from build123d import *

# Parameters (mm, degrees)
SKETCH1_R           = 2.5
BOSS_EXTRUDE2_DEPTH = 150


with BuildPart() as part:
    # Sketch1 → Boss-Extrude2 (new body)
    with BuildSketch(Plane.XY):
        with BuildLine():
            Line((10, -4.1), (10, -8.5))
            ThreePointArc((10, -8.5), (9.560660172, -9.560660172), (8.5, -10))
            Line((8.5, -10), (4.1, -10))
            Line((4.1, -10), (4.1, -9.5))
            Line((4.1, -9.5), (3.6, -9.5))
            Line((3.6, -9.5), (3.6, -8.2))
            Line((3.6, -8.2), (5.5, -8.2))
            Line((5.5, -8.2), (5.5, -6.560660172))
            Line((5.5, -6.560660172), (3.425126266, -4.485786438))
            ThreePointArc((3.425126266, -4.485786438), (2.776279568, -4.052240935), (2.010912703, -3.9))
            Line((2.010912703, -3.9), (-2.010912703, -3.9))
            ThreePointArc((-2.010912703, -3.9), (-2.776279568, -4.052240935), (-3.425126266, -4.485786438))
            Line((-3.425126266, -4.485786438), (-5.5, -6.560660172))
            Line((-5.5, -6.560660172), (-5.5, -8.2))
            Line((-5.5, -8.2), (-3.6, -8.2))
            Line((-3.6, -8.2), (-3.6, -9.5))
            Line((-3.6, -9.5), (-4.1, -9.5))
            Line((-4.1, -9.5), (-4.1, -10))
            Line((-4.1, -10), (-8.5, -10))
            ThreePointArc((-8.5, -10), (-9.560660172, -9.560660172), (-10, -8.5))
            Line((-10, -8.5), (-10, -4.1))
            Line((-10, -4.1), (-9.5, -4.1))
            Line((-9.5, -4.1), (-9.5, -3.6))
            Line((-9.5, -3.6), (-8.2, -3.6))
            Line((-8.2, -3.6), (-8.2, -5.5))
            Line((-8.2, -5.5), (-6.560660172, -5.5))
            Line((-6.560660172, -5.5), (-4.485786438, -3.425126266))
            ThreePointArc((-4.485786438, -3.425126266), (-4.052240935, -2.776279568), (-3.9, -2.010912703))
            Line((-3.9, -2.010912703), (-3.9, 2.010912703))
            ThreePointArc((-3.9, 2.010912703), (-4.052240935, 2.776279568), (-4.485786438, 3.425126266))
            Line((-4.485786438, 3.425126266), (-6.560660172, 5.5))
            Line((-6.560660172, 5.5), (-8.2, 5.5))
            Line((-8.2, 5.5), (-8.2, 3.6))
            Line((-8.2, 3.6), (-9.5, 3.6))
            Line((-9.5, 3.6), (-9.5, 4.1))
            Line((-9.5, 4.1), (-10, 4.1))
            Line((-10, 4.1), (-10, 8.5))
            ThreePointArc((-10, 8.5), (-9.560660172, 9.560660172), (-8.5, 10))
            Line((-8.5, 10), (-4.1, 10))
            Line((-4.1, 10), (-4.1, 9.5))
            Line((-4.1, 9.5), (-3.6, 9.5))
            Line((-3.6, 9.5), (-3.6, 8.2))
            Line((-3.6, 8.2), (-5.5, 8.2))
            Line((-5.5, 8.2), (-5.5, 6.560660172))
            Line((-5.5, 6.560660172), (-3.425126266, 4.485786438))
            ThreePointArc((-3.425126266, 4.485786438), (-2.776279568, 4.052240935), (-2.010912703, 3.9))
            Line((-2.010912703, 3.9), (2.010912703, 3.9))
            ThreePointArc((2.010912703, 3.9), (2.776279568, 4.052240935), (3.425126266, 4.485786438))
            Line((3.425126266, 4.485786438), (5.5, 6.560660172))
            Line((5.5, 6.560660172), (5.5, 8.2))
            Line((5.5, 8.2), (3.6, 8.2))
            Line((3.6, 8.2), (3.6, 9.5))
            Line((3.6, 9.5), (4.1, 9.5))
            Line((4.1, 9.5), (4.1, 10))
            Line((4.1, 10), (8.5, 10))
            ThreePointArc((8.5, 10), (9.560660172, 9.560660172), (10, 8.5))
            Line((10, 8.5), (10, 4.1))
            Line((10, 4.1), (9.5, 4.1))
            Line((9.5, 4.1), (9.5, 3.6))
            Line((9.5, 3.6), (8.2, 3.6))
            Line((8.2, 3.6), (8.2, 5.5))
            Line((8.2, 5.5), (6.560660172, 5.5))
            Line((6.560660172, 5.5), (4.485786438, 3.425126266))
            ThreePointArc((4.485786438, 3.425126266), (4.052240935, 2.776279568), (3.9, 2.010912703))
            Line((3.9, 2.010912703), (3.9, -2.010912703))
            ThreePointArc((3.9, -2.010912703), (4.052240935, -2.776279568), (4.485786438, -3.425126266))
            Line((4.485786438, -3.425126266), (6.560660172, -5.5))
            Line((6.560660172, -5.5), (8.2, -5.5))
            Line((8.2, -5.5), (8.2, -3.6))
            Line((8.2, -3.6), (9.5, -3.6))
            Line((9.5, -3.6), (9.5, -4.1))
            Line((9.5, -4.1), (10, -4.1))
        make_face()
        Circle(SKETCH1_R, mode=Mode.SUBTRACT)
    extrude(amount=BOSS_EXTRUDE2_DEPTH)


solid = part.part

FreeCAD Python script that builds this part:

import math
import FreeCAD as App
import Part
import Sketcher
from FreeCAD import Vector

doc = App.newDocument("Part")
body = doc.addObject("PartDesign::Body", "Body")

sketch1 = body.newObject("Sketcher::SketchObject", "Sketch")
sketch1.AttachmentSupport = (doc.getObject("XY_Plane"), [""])
sketch1.MapMode = "FlatFace"
sketch1.addGeometry(Part.LineSegment(Vector(10, -8.5, 0), Vector(10, -4.1, 0)), False)
sketch1.addGeometry(Part.LineSegment(Vector(10, -4.1, 0), Vector(9.5, -4.1, 0)), False)
sketch1.addGeometry(Part.LineSegment(Vector(9.5, -4.1, 0), Vector(9.5, -3.6, 0)), False)
sketch1.addGeometry(Part.LineSegment(Vector(9.5, -3.6, 0), Vector(8.2, -3.6, 0)), False)
sketch1.addGeometry(Part.LineSegment(Vector(8.2, -3.6, 0), Vector(8.2, -5.5, 0)), False)
sketch1.addGeometry(Part.LineSegment(Vector(8.2, -5.5, 0), Vector(6.56, -5.5, 0)), False)
sketch1.addGeometry(Part.LineSegment(Vector(6.56, -5.5, 0), Vector(4.49, -3.43, 0)), False)
sketch1.addGeometry(Part.ArcOfCircle(Part.Circle(Vector(5.9, -2.01, 0), Vector(0, 0, 1), 2), math.radians(180), math.radians(225)), False)
sketch1.addGeometry(Part.LineSegment(Vector(3.9, -2.01, 0), Vector(3.9, 2.01, 0)), False)
sketch1.addGeometry(Part.ArcOfCircle(Part.Circle(Vector(5.9, 2.01, 0), Vector(0, 0, 1), 2), math.radians(135), math.radians(180)), False)
sketch1.addGeometry(Part.LineSegment(Vector(4.49, 3.43, 0), Vector(6.56, 5.5, 0)), False)
sketch1.addGeometry(Part.LineSegment(Vector(6.56, 5.5, 0), Vector(8.2, 5.5, 0)), False)
sketch1.addGeometry(Part.LineSegment(Vector(8.2, 5.5, 0), Vector(8.2, 3.6, 0)), False)
sketch1.addGeometry(Part.LineSegment(Vector(8.2, 3.6, 0), Vector(9.5, 3.6, 0)), False)
sketch1.addGeometry(Part.LineSegment(Vector(9.5, 3.6, 0), Vector(9.5, 4.1, 0)), False)
sketch1.addGeometry(Part.LineSegment(Vector(9.5, 4.1, 0), Vector(10, 4.1, 0)), False)
sketch1.addGeometry(Part.LineSegment(Vector(10, 4.1, 0), Vector(10, 8.5, 0)), False)
sketch1.addGeometry(Part.ArcOfCircle(Part.Circle(Vector(8.5, 8.5, 0), Vector(0, 0, 1), 1.5), math.radians(0), math.radians(90)), False)
sketch1.addGeometry(Part.LineSegment(Vector(8.5, 10, 0), Vector(4.1, 10, 0)), False)
sketch1.addGeometry(Part.LineSegment(Vector(4.1, 10, 0), Vector(4.1, 9.5, 0)), False)
sketch1.addGeometry(Part.LineSegment(Vector(4.1, 9.5, 0), Vector(3.6, 9.5, 0)), False)
sketch1.addGeometry(Part.LineSegment(Vector(3.6, 9.5, 0), Vector(3.6, 8.2, 0)), False)
sketch1.addGeometry(Part.LineSegment(Vector(3.6, 8.2, 0), Vector(5.5, 8.2, 0)), False)
sketch1.addGeometry(Part.LineSegment(Vector(5.5, 8.2, 0), Vector(5.5, 6.56, 0)), False)
sketch1.addGeometry(Part.LineSegment(Vector(5.5, 6.56, 0), Vector(3.43, 4.49, 0)), False)
sketch1.addGeometry(Part.ArcOfCircle(Part.Circle(Vector(2.01, 5.9, 0), Vector(0, 0, 1), 2), math.radians(-90), math.radians(-45)), False)
sketch1.addGeometry(Part.LineSegment(Vector(2.01, 3.9, 0), Vector(-2.01, 3.9, 0)), False)
sketch1.addGeometry(Part.ArcOfCircle(Part.Circle(Vector(-2.01, 5.9, 0), Vector(0, 0, 1), 2), math.radians(-135), math.radians(-90)), False)
sketch1.addGeometry(Part.LineSegment(Vector(-3.43, 4.49, 0), Vector(-5.5, 6.56, 0)), False)
sketch1.addGeometry(Part.LineSegment(Vector(-5.5, 6.56, 0), Vector(-5.5, 8.2, 0)), False)
sketch1.addGeometry(Part.LineSegment(Vector(-5.5, 8.2, 0), Vector(-3.6, 8.2, 0)), False)
sketch1.addGeometry(Part.LineSegment(Vector(-3.6, 8.2, 0), Vector(-3.6, 9.5, 0)), False)
sketch1.addGeometry(Part.LineSegment(Vector(-3.6, 9.5, 0), Vector(-4.1, 9.5, 0)), False)
sketch1.addGeometry(Part.LineSegment(Vector(-4.1, 9.5, 0), Vector(-4.1, 10, 0)), False)
sketch1.addGeometry(Part.LineSegment(Vector(-4.1, 10, 0), Vector(-8.5, 10, 0)), False)
sketch1.addGeometry(Part.ArcOfCircle(Part.Circle(Vector(-8.5, 8.5, 0), Vector(0, 0, 1), 1.5), math.radians(90), math.radians(180)), False)
sketch1.addGeometry(Part.LineSegment(Vector(-10, 8.5, 0), Vector(-10, 4.1, 0)), False)
sketch1.addGeometry(Part.LineSegment(Vector(-10, 4.1, 0), Vector(-9.5, 4.1, 0)), False)
sketch1.addGeometry(Part.LineSegment(Vector(-9.5, 4.1, 0), Vector(-9.5, 3.6, 0)), False)
sketch1.addGeometry(Part.LineSegment(Vector(-9.5, 3.6, 0), Vector(-8.2, 3.6, 0)), False)
sketch1.addGeometry(Part.LineSegment(Vector(-8.2, 3.6, 0), Vector(-8.2, 5.5, 0)), False)
sketch1.addGeometry(Part.LineSegment(Vector(-8.2, 5.5, 0), Vector(-6.56, 5.5, 0)), False)
sketch1.addGeometry(Part.LineSegment(Vector(-6.56, 5.5, 0), Vector(-4.49, 3.43, 0)), False)
sketch1.addGeometry(Part.ArcOfCircle(Part.Circle(Vector(-5.9, 2.01, 0), Vector(0, 0, 1), 2), math.radians(0), math.radians(45)), False)
sketch1.addGeometry(Part.LineSegment(Vector(-3.9, 2.01, 0), Vector(-3.9, -2.01, 0)), False)
sketch1.addGeometry(Part.ArcOfCircle(Part.Circle(Vector(-5.9, -2.01, 0), Vector(0, 0, 1), 2), math.radians(-45), math.radians(0)), False)
sketch1.addGeometry(Part.LineSegment(Vector(-4.49, -3.43, 0), Vector(-6.56, -5.5, 0)), False)
sketch1.addGeometry(Part.LineSegment(Vector(-6.56, -5.5, 0), Vector(-8.2, -5.5, 0)), False)
sketch1.addGeometry(Part.LineSegment(Vector(-8.2, -5.5, 0), Vector(-8.2, -3.6, 0)), False)
sketch1.addGeometry(Part.LineSegment(Vector(-8.2, -3.6, 0), Vector(-9.5, -3.6, 0)), False)
sketch1.addGeometry(Part.LineSegment(Vector(-9.5, -3.6, 0), Vector(-9.5, -4.1, 0)), False)
sketch1.addGeometry(Part.LineSegment(Vector(-9.5, -4.1, 0), Vector(-10, -4.1, 0)), False)
sketch1.addGeometry(Part.LineSegment(Vector(-10, -4.1, 0), Vector(-10, -8.5, 0)), False)
sketch1.addGeometry(Part.ArcOfCircle(Part.Circle(Vector(-8.5, -8.5, 0), Vector(0, 0, 1), 1.5), math.radians(180), math.radians(270)), False)
sketch1.addGeometry(Part.LineSegment(Vector(-8.5, -10, 0), Vector(-4.1, -10, 0)), False)
sketch1.addGeometry(Part.LineSegment(Vector(-4.1, -10, 0), Vector(-4.1, -9.5, 0)), False)
sketch1.addGeometry(Part.LineSegment(Vector(-4.1, -9.5, 0), Vector(-3.6, -9.5, 0)), False)
sketch1.addGeometry(Part.LineSegment(Vector(-3.6, -9.5, 0), Vector(-3.6, -8.2, 0)), False)
sketch1.addGeometry(Part.LineSegment(Vector(-3.6, -8.2, 0), Vector(-5.5, -8.2, 0)), False)
sketch1.addGeometry(Part.LineSegment(Vector(-5.5, -8.2, 0), Vector(-5.5, -6.56, 0)), False)
sketch1.addGeometry(Part.LineSegment(Vector(-5.5, -6.56, 0), Vector(-3.43, -4.49, 0)), False)
sketch1.addGeometry(Part.ArcOfCircle(Part.Circle(Vector(-2.01, -5.9, 0), Vector(0, 0, 1), 2), math.radians(90), math.radians(135)), False)
sketch1.addGeometry(Part.LineSegment(Vector(-2.01, -3.9, 0), Vector(2.01, -3.9, 0)), False)
sketch1.addGeometry(Part.ArcOfCircle(Part.Circle(Vector(2.01, -5.9, 0), Vector(0, 0, 1), 2), math.radians(45), math.radians(90)), False)
sketch1.addGeometry(Part.LineSegment(Vector(3.43, -4.49, 0), Vector(5.5, -6.56, 0)), False)
sketch1.addGeometry(Part.LineSegment(Vector(5.5, -6.56, 0), Vector(5.5, -8.2, 0)), False)
sketch1.addGeometry(Part.LineSegment(Vector(5.5, -8.2, 0), Vector(3.6, -8.2, 0)), False)
sketch1.addGeometry(Part.LineSegment(Vector(3.6, -8.2, 0), Vector(3.6, -9.5, 0)), False)
sketch1.addGeometry(Part.LineSegment(Vector(3.6, -9.5, 0), Vector(4.1, -9.5, 0)), False)
sketch1.addGeometry(Part.LineSegment(Vector(4.1, -9.5, 0), Vector(4.1, -10, 0)), False)
sketch1.addGeometry(Part.LineSegment(Vector(4.1, -10, 0), Vector(8.5, -10, 0)), False)
sketch1.addGeometry(Part.ArcOfCircle(Part.Circle(Vector(8.5, -8.5, 0), Vector(0, 0, 1), 1.5), math.radians(-90), math.radians(0)), False)
sketch1.addGeometry(Part.Circle(Vector(0, 0, 0), Vector(0, 0, 1), 2.5), False)
sketch1.addConstraint(Sketcher.Constraint("Coincident", 0, 2, 1, 1))
sketch1.addConstraint(Sketcher.Constraint("Coincident", 1, 2, 2, 1))
sketch1.addConstraint(Sketcher.Constraint("Coincident", 2, 2, 3, 1))
sketch1.addConstraint(Sketcher.Constraint("Coincident", 3, 2, 4, 1))
sketch1.addConstraint(Sketcher.Constraint("Coincident", 4, 2, 5, 1))
sketch1.addConstraint(Sketcher.Constraint("Coincident", 5, 2, 6, 1))
sketch1.addConstraint(Sketcher.Constraint("Tangent", 6, 2, 7, 2))
sketch1.addConstraint(Sketcher.Constraint("Tangent", 7, 1, 8, 1))
sketch1.addConstraint(Sketcher.Constraint("Tangent", 8, 2, 9, 2))
sketch1.addConstraint(Sketcher.Constraint("Tangent", 9, 1, 10, 1))
sketch1.addConstraint(Sketcher.Constraint("Coincident", 10, 2, 11, 1))
sketch1.addConstraint(Sketcher.Constraint("Coincident", 11, 2, 12, 1))
sketch1.addConstraint(Sketcher.Constraint("Coincident", 12, 2, 13, 1))
sketch1.addConstraint(Sketcher.Constraint("Coincident", 13, 2, 14, 1))
sketch1.addConstraint(Sketcher.Constraint("Coincident", 14, 2, 15, 1))
sketch1.addConstraint(Sketcher.Constraint("Coincident", 15, 2, 16, 1))
sketch1.addConstraint(Sketcher.Constraint("Tangent", 16, 2, 17, 1))
sketch1.addConstraint(Sketcher.Constraint("Tangent", 17, 2, 18, 1))
sketch1.addConstraint(Sketcher.Constraint("Coincident", 18, 2, 19, 1))
sketch1.addConstraint(Sketcher.Constraint("Coincident", 19, 2, 20, 1))
sketch1.addConstraint(Sketcher.Constraint("Coincident", 20, 2, 21, 1))
sketch1.addConstraint(Sketcher.Constraint("Coincident", 21, 2, 22, 1))
sketch1.addConstraint(Sketcher.Constraint("Coincident", 22, 2, 23, 1))
sketch1.addConstraint(Sketcher.Constraint("Coincident", 23, 2, 24, 1))
sketch1.addConstraint(Sketcher.Constraint("Tangent", 24, 2, 25, 2))
sketch1.addConstraint(Sketcher.Constraint("Tangent", 25, 1, 26, 1))
sketch1.addConstraint(Sketcher.Constraint("Tangent", 26, 2, 27, 2))
sketch1.addConstraint(Sketcher.Constraint("Tangent", 27, 1, 28, 1))
sketch1.addConstraint(Sketcher.Constraint("Coincident", 28, 2, 29, 1))
sketch1.addConstraint(Sketcher.Constraint("Coincident", 29, 2, 30, 1))
sketch1.addConstraint(Sketcher.Constraint("Coincident", 30, 2, 31, 1))
sketch1.addConstraint(Sketcher.Constraint("Coincident", 31, 2, 32, 1))
sketch1.addConstraint(Sketcher.Constraint("Coincident", 32, 2, 33, 1))
sketch1.addConstraint(Sketcher.Constraint("Coincident", 33, 2, 34, 1))
sketch1.addConstraint(Sketcher.Constraint("Tangent", 34, 2, 35, 1))
sketch1.addConstraint(Sketcher.Constraint("Tangent", 35, 2, 36, 1))
sketch1.addConstraint(Sketcher.Constraint("Coincident", 36, 2, 37, 1))
sketch1.addConstraint(Sketcher.Constraint("Coincident", 37, 2, 38, 1))
sketch1.addConstraint(Sketcher.Constraint("Coincident", 38, 2, 39, 1))
sketch1.addConstraint(Sketcher.Constraint("Coincident", 39, 2, 40, 1))
sketch1.addConstraint(Sketcher.Constraint("Coincident", 40, 2, 41, 1))
sketch1.addConstraint(Sketcher.Constraint("Coincident", 41, 2, 42, 1))
sketch1.addConstraint(Sketcher.Constraint("Tangent", 42, 2, 43, 2))
sketch1.addConstraint(Sketcher.Constraint("Tangent", 43, 1, 44, 1))
sketch1.addConstraint(Sketcher.Constraint("Tangent", 44, 2, 45, 2))
sketch1.addConstraint(Sketcher.Constraint("Tangent", 45, 1, 46, 1))
sketch1.addConstraint(Sketcher.Constraint("Coincident", 46, 2, 47, 1))
sketch1.addConstraint(Sketcher.Constraint("Coincident", 47, 2, 48, 1))
sketch1.addConstraint(Sketcher.Constraint("Coincident", 48, 2, 49, 1))
sketch1.addConstraint(Sketcher.Constraint("Coincident", 49, 2, 50, 1))
sketch1.addConstraint(Sketcher.Constraint("Coincident", 50, 2, 51, 1))
sketch1.addConstraint(Sketcher.Constraint("Coincident", 51, 2, 52, 1))
sketch1.addConstraint(Sketcher.Constraint("Tangent", 52, 2, 53, 1))
sketch1.addConstraint(Sketcher.Constraint("Tangent", 53, 2, 54, 1))
sketch1.addConstraint(Sketcher.Constraint("Coincident", 54, 2, 55, 1))
sketch1.addConstraint(Sketcher.Constraint("Coincident", 55, 2, 56, 1))
sketch1.addConstraint(Sketcher.Constraint("Coincident", 56, 2, 57, 1))
sketch1.addConstraint(Sketcher.Constraint("Coincident", 57, 2, 58, 1))
sketch1.addConstraint(Sketcher.Constraint("Coincident", 58, 2, 59, 1))
sketch1.addConstraint(Sketcher.Constraint("Coincident", 59, 2, 60, 1))
sketch1.addConstraint(Sketcher.Constraint("Tangent", 60, 2, 61, 2))
sketch1.addConstraint(Sketcher.Constraint("Tangent", 61, 1, 62, 1))
sketch1.addConstraint(Sketcher.Constraint("Tangent", 62, 2, 63, 2))
sketch1.addConstraint(Sketcher.Constraint("Tangent", 63, 1, 64, 1))
sketch1.addConstraint(Sketcher.Constraint("Coincident", 64, 2, 65, 1))
sketch1.addConstraint(Sketcher.Constraint("Coincident", 65, 2, 66, 1))
sketch1.addConstraint(Sketcher.Constraint("Coincident", 66, 2, 67, 1))
sketch1.addConstraint(Sketcher.Constraint("Coincident", 67, 2, 68, 1))
sketch1.addConstraint(Sketcher.Constraint("Coincident", 68, 2, 69, 1))
sketch1.addConstraint(Sketcher.Constraint("Coincident", 69, 2, 70, 1))
sketch1.addConstraint(Sketcher.Constraint("Tangent", 70, 2, 71, 1))
sketch1.addConstraint(Sketcher.Constraint("Tangent", 71, 2, 0, 1))
sketch1.addConstraint(Sketcher.Constraint("Vertical", 0))
sketch1.addConstraint(Sketcher.Constraint("Horizontal", 1))
sketch1.addConstraint(Sketcher.Constraint("Vertical", 2))
sketch1.addConstraint(Sketcher.Constraint("Horizontal", 3))
sketch1.addConstraint(Sketcher.Constraint("Vertical", 4))
sketch1.addConstraint(Sketcher.Constraint("Horizontal", 5))
sketch1.addConstraint(Sketcher.Constraint("Vertical", 8))
sketch1.addConstraint(Sketcher.Constraint("Horizontal", 11))
sketch1.addConstraint(Sketcher.Constraint("Vertical", 12))
sketch1.addConstraint(Sketcher.Constraint("Horizontal", 13))
sketch1.addConstraint(Sketcher.Constraint("Vertical", 14))
sketch1.addConstraint(Sketcher.Constraint("Horizontal", 15))
sketch1.addConstraint(Sketcher.Constraint("Vertical", 16))
sketch1.addConstraint(Sketcher.Constraint("Horizontal", 18))
sketch1.addConstraint(Sketcher.Constraint("Vertical", 19))
sketch1.addConstraint(Sketcher.Constraint("Horizontal", 20))
sketch1.addConstraint(Sketcher.Constraint("Vertical", 21))
sketch1.addConstraint(Sketcher.Constraint("Horizontal", 22))
sketch1.addConstraint(Sketcher.Constraint("Vertical", 23))
sketch1.addConstraint(Sketcher.Constraint("Horizontal", 26))
sketch1.addConstraint(Sketcher.Constraint("Vertical", 29))
sketch1.addConstraint(Sketcher.Constraint("Horizontal", 30))
sketch1.addConstraint(Sketcher.Constraint("Vertical", 31))
sketch1.addConstraint(Sketcher.Constraint("Horizontal", 32))
sketch1.addConstraint(Sketcher.Constraint("Vertical", 33))
sketch1.addConstraint(Sketcher.Constraint("Horizontal", 34))
sketch1.addConstraint(Sketcher.Constraint("Vertical", 36))
sketch1.addConstraint(Sketcher.Constraint("Horizontal", 37))
sketch1.addConstraint(Sketcher.Constraint("Vertical", 38))
sketch1.addConstraint(Sketcher.Constraint("Horizontal", 39))
sketch1.addConstraint(Sketcher.Constraint("Vertical", 40))
sketch1.addConstraint(Sketcher.Constraint("Horizontal", 41))
sketch1.addConstraint(Sketcher.Constraint("Vertical", 44))
sketch1.addConstraint(Sketcher.Constraint("Horizontal", 47))
sketch1.addConstraint(Sketcher.Constraint("Vertical", 48))
sketch1.addConstraint(Sketcher.Constraint("Horizontal", 49))
sketch1.addConstraint(Sketcher.Constraint("Vertical", 50))
sketch1.addConstraint(Sketcher.Constraint("Horizontal", 51))
sketch1.addConstraint(Sketcher.Constraint("Vertical", 52))
sketch1.addConstraint(Sketcher.Constraint("Horizontal", 54))
sketch1.addConstraint(Sketcher.Constraint("Vertical", 55))
sketch1.addConstraint(Sketcher.Constraint("Horizontal", 56))
sketch1.addConstraint(Sketcher.Constraint("Vertical", 57))
sketch1.addConstraint(Sketcher.Constraint("Horizontal", 58))
sketch1.addConstraint(Sketcher.Constraint("Vertical", 59))
sketch1.addConstraint(Sketcher.Constraint("Horizontal", 62))
sketch1.addConstraint(Sketcher.Constraint("Vertical", 65))
sketch1.addConstraint(Sketcher.Constraint("Horizontal", 66))
sketch1.addConstraint(Sketcher.Constraint("Vertical", 67))
sketch1.addConstraint(Sketcher.Constraint("Horizontal", 68))
sketch1.addConstraint(Sketcher.Constraint("Vertical", 69))
sketch1.addConstraint(Sketcher.Constraint("Horizontal", 70))
sketch1.addConstraint(Sketcher.Constraint("Coincident", 72, 3, -1, 1))
sketch1.addConstraint(Sketcher.Constraint("Equal", 7, 9))
sketch1.addConstraint(Sketcher.Constraint("Equal", 9, 25))
sketch1.addConstraint(Sketcher.Constraint("Equal", 25, 27))
sketch1.addConstraint(Sketcher.Constraint("Equal", 17, 35))
sketch1.addConstraint(Sketcher.Constraint("Equal", 27, 43))
sketch1.addConstraint(Sketcher.Constraint("Equal", 43, 45))
sketch1.addConstraint(Sketcher.Constraint("Equal", 35, 53))
sketch1.addConstraint(Sketcher.Constraint("Equal", 45, 61))
sketch1.addConstraint(Sketcher.Constraint("Equal", 61, 63))
sketch1.addConstraint(Sketcher.Constraint("Equal", 53, 71))
sketch1.addConstraint(Sketcher.Constraint("Symmetric", 7, 3, 43, 3, -1, 1))
sketch1.addConstraint(Sketcher.Constraint("Symmetric", 17, 3, 53, 3, -1, 1))
sketch1.addConstraint(Sketcher.Constraint("Symmetric", 25, 3, 61, 3, -1, 1))
sketch1.addConstraint(Sketcher.Constraint("Symmetric", 35, 3, 71, 3, -1, 1))
sketch1.addConstraint(Sketcher.Constraint("Symmetric", 1, 2, 37, 2, -1, 1))
sketch1.addConstraint(Sketcher.Constraint("Symmetric", 3, 2, 39, 2, -1, 1))
sketch1.addConstraint(Sketcher.Constraint("Symmetric", 5, 2, 41, 2, -1, 1))
sketch1.addConstraint(Sketcher.Constraint("Symmetric", 9, 1, 45, 1, -1, 1))
sketch1.addConstraint(Sketcher.Constraint("Symmetric", 11, 2, 47, 2, -1, 1))
sketch1.addConstraint(Sketcher.Constraint("Symmetric", 13, 2, 49, 2, -1, 1))
sketch1.addConstraint(Sketcher.Constraint("Symmetric", 19, 2, 55, 2, -1, 1))
sketch1.addConstraint(Sketcher.Constraint("Symmetric", 21, 2, 57, 2, -1, 1))
sketch1.addConstraint(Sketcher.Constraint("Symmetric", 23, 2, 59, 2, -1, 1))
sketch1.addConstraint(Sketcher.Constraint("Symmetric", 27, 1, 63, 1, -1, 1))
sketch1.addConstraint(Sketcher.Constraint("Symmetric", 29, 2, 65, 2, -1, 1))
sketch1.addConstraint(Sketcher.Constraint("Symmetric", 31, 2, 67, 2, -1, 1))
sketch1.addConstraint(Sketcher.Constraint("Symmetric", 17, 3, 35, 3, -2))
sketch1.addConstraint(Sketcher.Constraint("Symmetric", 24, 2, 27, 1, -2))
sketch1.addConstraint(Sketcher.Constraint("Symmetric", 22, 2, 29, 2, -2))
sketch1.addConstraint(Sketcher.Constraint("Symmetric", 20, 2, 31, 2, -2))
sketch1.addConstraint(Sketcher.Constraint("Symmetric", 14, 2, 37, 2, -2))
sketch1.addConstraint(Sketcher.Constraint("Symmetric", 12, 2, 39, 2, -2))
sketch1.addConstraint(Sketcher.Constraint("Symmetric", 10, 2, 41, 2, -2))
sketch1.addConstraint(Sketcher.Constraint("Perpendicular", 6, 10))
sketch1.addConstraint(Sketcher.Constraint("Parallel", 10, 24))
sketch1.addConstraint(Sketcher.Constraint("Perpendicular", 24, 28))
sketch1.addConstraint(Sketcher.Constraint("Horizontal", 1, 2, 50, 2))
sketch1.addConstraint(Sketcher.Constraint("Vertical", 33, 2, 54, 2))
sketch1.addConstraint(Sketcher.Constraint("Vertical", 19, 2, 68, 2))
sketch1.addConstraint(Sketcher.Constraint("Equal", 15, 20))
sketch1.addConstraint(Sketcher.Constraint("Equal", 70, 0))
sketch1.addConstraint(Sketcher.Constraint("Equal", 68, 2))
sketch1.addConstraint(Sketcher.Constraint("Equal", 66, 4))
sketch1.addConstraint(Sketcher.Constraint("Equal", 62, 8))
sketch1.addConstraint(Sketcher.Constraint("Equal", 14, 19))
sketch1.addConstraint(Sketcher.Constraint("Equal", 49, 21))
sketch1.addConstraint(Sketcher.Constraint("Equal", 47, 23))
sketch1.addConstraint(Sketcher.Constraint("Equal", 10, 24))
sketch1.addConstraint(Sketcher.Constraint("Diameter", 72, 5.0))
sketch1.addConstraint(Sketcher.Constraint("Radius", 7, 2.0))
sketch1.addConstraint(Sketcher.Constraint("Radius", 17, 1.5))
sketch1.addConstraint(Sketcher.Constraint("DistanceX", 1, 2, 1, 1, 0.5))
sketch1.addConstraint(Sketcher.Constraint("DistanceX", 3, 2, 3, 1, 1.3))
sketch1.addConstraint(Sketcher.Constraint("DistanceX", 18, 2, 18, 1, 4.4))
sketch1.addConstraint(Sketcher.Constraint("DistanceX", 22, 1, 22, 2, 1.9))
sketch1.addConstraint(Sketcher.Constraint("DistanceX", -1, 1, 0, 2, 10.0))
sketch1.addConstraint(Sketcher.Constraint("DistanceX", -1, 1, 7, 3, 5.9))
sketch1.addConstraint(Sketcher.Constraint("DistanceX", 5, 2, 5, 1, 1.63934))
pad1 = body.newObject("PartDesign::Pad", "Pad")
pad1.Profile = sketch1
pad1.Length = 150

doc.recompute()
